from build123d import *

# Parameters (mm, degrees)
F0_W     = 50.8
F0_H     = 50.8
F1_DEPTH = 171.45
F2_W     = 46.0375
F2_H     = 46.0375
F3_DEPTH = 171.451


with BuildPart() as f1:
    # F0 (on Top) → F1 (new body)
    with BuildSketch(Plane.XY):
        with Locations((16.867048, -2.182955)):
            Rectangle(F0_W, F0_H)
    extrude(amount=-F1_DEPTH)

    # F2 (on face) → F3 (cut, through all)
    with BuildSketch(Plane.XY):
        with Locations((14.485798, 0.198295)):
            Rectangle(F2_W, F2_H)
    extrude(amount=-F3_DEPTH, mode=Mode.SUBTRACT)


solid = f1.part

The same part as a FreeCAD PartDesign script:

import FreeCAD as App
import Part
import Sketcher
Q = App.Units.Quantity


def add_polygon(sketch, points):
    """Adds a closed chain of lines whose ends are joined by coincident constraints."""
    first, n = sketch.GeometryCount, len(points)
    for a, b in zip(points, points[1:] + points[:1]):
        sketch.addGeometry(Part.LineSegment(App.Vector(*a, 0), App.Vector(*b, 0)), False)
    for i in range(n):
        sketch.addConstraint(Sketcher.Constraint("Coincident", first + i, 2, first + (i + 1) % n, 1))

doc = App.newDocument("Part")
body = doc.addObject("PartDesign::Body", "Body")

sketch1 = body.newObject("Sketcher::SketchObject", "Sketch")
sketch1.AttachmentSupport = (doc.getObject("XY_Plane"), [""])
sketch1.MapMode = "FlatFace"
add_polygon(sketch1, [(-8.532952, 23.217045), (-8.532952, -27.582955), (42.267048, -27.582955), (42.267048, 23.217045)])
sketch1.addConstraint(Sketcher.Constraint("Vertical", 0))
sketch1.addConstraint(Sketcher.Constraint("Horizontal", 1))
sketch1.addConstraint(Sketcher.Constraint("Vertical", 2))
sketch1.addConstraint(Sketcher.Constraint("Horizontal", 3))
sketch1.addConstraint(Sketcher.Constraint("Equal", 3, 0))
sketch1.addConstraint(Sketcher.Constraint("DistanceX", 1, 1, 1, 2, Q("2 in")))
sketch1.addConstraint(Sketcher.Constraint("DistanceX", -1, 1, 1, 2, 42.267048))
sketch1.addConstraint(Sketcher.Constraint("DistanceY", 0, 2, -1, 1, 27.582955))
pad1 = body.newObject("PartDesign::Pad", "Pad")
pad1.Profile = sketch1
pad1.Length = Q("6.75 in")
pad1.Reversed = True

sketch2 = body.newObject("Sketcher::SketchObject", "Sketch001")
sketch2.AttachmentSupport = (doc.getObject("XY_Plane"), [""])
sketch2.MapMode = "FlatFace"
add_polygon(sketch2, [(-8.532952, 23.217045), (-8.532952, -22.820455), (37.504548, -22.820455), (37.504548, 23.217045)])
sketch2.addConstraint(Sketcher.Constraint("Vertical", 0))
sketch2.addConstraint(Sketcher.Constraint("Horizontal", 1))
sketch2.addConstraint(Sketcher.Constraint("Vertical", 2))
sketch2.addConstraint(Sketcher.Constraint("Horizontal", 3))
sketch2.addConstraint(Sketcher.Constraint("Equal", 3, 0))
sketch2.addConstraint(Sketcher.Constraint("DistanceX", 1, 1, 1, 2, Q("1.8125 in")))
sketch2.addConstraint(Sketcher.Constraint("DistanceX", 0, 2, -1, 1, 8.532952))
sketch2.addConstraint(Sketcher.Constraint("DistanceY", 0, 2, -1, 1, 22.820455))
pocket1 = body.newObject("PartDesign::Pocket", "Pocket")
pocket1.Profile = sketch2
pocket1.Type = "ThroughAll"

doc.recompute()
